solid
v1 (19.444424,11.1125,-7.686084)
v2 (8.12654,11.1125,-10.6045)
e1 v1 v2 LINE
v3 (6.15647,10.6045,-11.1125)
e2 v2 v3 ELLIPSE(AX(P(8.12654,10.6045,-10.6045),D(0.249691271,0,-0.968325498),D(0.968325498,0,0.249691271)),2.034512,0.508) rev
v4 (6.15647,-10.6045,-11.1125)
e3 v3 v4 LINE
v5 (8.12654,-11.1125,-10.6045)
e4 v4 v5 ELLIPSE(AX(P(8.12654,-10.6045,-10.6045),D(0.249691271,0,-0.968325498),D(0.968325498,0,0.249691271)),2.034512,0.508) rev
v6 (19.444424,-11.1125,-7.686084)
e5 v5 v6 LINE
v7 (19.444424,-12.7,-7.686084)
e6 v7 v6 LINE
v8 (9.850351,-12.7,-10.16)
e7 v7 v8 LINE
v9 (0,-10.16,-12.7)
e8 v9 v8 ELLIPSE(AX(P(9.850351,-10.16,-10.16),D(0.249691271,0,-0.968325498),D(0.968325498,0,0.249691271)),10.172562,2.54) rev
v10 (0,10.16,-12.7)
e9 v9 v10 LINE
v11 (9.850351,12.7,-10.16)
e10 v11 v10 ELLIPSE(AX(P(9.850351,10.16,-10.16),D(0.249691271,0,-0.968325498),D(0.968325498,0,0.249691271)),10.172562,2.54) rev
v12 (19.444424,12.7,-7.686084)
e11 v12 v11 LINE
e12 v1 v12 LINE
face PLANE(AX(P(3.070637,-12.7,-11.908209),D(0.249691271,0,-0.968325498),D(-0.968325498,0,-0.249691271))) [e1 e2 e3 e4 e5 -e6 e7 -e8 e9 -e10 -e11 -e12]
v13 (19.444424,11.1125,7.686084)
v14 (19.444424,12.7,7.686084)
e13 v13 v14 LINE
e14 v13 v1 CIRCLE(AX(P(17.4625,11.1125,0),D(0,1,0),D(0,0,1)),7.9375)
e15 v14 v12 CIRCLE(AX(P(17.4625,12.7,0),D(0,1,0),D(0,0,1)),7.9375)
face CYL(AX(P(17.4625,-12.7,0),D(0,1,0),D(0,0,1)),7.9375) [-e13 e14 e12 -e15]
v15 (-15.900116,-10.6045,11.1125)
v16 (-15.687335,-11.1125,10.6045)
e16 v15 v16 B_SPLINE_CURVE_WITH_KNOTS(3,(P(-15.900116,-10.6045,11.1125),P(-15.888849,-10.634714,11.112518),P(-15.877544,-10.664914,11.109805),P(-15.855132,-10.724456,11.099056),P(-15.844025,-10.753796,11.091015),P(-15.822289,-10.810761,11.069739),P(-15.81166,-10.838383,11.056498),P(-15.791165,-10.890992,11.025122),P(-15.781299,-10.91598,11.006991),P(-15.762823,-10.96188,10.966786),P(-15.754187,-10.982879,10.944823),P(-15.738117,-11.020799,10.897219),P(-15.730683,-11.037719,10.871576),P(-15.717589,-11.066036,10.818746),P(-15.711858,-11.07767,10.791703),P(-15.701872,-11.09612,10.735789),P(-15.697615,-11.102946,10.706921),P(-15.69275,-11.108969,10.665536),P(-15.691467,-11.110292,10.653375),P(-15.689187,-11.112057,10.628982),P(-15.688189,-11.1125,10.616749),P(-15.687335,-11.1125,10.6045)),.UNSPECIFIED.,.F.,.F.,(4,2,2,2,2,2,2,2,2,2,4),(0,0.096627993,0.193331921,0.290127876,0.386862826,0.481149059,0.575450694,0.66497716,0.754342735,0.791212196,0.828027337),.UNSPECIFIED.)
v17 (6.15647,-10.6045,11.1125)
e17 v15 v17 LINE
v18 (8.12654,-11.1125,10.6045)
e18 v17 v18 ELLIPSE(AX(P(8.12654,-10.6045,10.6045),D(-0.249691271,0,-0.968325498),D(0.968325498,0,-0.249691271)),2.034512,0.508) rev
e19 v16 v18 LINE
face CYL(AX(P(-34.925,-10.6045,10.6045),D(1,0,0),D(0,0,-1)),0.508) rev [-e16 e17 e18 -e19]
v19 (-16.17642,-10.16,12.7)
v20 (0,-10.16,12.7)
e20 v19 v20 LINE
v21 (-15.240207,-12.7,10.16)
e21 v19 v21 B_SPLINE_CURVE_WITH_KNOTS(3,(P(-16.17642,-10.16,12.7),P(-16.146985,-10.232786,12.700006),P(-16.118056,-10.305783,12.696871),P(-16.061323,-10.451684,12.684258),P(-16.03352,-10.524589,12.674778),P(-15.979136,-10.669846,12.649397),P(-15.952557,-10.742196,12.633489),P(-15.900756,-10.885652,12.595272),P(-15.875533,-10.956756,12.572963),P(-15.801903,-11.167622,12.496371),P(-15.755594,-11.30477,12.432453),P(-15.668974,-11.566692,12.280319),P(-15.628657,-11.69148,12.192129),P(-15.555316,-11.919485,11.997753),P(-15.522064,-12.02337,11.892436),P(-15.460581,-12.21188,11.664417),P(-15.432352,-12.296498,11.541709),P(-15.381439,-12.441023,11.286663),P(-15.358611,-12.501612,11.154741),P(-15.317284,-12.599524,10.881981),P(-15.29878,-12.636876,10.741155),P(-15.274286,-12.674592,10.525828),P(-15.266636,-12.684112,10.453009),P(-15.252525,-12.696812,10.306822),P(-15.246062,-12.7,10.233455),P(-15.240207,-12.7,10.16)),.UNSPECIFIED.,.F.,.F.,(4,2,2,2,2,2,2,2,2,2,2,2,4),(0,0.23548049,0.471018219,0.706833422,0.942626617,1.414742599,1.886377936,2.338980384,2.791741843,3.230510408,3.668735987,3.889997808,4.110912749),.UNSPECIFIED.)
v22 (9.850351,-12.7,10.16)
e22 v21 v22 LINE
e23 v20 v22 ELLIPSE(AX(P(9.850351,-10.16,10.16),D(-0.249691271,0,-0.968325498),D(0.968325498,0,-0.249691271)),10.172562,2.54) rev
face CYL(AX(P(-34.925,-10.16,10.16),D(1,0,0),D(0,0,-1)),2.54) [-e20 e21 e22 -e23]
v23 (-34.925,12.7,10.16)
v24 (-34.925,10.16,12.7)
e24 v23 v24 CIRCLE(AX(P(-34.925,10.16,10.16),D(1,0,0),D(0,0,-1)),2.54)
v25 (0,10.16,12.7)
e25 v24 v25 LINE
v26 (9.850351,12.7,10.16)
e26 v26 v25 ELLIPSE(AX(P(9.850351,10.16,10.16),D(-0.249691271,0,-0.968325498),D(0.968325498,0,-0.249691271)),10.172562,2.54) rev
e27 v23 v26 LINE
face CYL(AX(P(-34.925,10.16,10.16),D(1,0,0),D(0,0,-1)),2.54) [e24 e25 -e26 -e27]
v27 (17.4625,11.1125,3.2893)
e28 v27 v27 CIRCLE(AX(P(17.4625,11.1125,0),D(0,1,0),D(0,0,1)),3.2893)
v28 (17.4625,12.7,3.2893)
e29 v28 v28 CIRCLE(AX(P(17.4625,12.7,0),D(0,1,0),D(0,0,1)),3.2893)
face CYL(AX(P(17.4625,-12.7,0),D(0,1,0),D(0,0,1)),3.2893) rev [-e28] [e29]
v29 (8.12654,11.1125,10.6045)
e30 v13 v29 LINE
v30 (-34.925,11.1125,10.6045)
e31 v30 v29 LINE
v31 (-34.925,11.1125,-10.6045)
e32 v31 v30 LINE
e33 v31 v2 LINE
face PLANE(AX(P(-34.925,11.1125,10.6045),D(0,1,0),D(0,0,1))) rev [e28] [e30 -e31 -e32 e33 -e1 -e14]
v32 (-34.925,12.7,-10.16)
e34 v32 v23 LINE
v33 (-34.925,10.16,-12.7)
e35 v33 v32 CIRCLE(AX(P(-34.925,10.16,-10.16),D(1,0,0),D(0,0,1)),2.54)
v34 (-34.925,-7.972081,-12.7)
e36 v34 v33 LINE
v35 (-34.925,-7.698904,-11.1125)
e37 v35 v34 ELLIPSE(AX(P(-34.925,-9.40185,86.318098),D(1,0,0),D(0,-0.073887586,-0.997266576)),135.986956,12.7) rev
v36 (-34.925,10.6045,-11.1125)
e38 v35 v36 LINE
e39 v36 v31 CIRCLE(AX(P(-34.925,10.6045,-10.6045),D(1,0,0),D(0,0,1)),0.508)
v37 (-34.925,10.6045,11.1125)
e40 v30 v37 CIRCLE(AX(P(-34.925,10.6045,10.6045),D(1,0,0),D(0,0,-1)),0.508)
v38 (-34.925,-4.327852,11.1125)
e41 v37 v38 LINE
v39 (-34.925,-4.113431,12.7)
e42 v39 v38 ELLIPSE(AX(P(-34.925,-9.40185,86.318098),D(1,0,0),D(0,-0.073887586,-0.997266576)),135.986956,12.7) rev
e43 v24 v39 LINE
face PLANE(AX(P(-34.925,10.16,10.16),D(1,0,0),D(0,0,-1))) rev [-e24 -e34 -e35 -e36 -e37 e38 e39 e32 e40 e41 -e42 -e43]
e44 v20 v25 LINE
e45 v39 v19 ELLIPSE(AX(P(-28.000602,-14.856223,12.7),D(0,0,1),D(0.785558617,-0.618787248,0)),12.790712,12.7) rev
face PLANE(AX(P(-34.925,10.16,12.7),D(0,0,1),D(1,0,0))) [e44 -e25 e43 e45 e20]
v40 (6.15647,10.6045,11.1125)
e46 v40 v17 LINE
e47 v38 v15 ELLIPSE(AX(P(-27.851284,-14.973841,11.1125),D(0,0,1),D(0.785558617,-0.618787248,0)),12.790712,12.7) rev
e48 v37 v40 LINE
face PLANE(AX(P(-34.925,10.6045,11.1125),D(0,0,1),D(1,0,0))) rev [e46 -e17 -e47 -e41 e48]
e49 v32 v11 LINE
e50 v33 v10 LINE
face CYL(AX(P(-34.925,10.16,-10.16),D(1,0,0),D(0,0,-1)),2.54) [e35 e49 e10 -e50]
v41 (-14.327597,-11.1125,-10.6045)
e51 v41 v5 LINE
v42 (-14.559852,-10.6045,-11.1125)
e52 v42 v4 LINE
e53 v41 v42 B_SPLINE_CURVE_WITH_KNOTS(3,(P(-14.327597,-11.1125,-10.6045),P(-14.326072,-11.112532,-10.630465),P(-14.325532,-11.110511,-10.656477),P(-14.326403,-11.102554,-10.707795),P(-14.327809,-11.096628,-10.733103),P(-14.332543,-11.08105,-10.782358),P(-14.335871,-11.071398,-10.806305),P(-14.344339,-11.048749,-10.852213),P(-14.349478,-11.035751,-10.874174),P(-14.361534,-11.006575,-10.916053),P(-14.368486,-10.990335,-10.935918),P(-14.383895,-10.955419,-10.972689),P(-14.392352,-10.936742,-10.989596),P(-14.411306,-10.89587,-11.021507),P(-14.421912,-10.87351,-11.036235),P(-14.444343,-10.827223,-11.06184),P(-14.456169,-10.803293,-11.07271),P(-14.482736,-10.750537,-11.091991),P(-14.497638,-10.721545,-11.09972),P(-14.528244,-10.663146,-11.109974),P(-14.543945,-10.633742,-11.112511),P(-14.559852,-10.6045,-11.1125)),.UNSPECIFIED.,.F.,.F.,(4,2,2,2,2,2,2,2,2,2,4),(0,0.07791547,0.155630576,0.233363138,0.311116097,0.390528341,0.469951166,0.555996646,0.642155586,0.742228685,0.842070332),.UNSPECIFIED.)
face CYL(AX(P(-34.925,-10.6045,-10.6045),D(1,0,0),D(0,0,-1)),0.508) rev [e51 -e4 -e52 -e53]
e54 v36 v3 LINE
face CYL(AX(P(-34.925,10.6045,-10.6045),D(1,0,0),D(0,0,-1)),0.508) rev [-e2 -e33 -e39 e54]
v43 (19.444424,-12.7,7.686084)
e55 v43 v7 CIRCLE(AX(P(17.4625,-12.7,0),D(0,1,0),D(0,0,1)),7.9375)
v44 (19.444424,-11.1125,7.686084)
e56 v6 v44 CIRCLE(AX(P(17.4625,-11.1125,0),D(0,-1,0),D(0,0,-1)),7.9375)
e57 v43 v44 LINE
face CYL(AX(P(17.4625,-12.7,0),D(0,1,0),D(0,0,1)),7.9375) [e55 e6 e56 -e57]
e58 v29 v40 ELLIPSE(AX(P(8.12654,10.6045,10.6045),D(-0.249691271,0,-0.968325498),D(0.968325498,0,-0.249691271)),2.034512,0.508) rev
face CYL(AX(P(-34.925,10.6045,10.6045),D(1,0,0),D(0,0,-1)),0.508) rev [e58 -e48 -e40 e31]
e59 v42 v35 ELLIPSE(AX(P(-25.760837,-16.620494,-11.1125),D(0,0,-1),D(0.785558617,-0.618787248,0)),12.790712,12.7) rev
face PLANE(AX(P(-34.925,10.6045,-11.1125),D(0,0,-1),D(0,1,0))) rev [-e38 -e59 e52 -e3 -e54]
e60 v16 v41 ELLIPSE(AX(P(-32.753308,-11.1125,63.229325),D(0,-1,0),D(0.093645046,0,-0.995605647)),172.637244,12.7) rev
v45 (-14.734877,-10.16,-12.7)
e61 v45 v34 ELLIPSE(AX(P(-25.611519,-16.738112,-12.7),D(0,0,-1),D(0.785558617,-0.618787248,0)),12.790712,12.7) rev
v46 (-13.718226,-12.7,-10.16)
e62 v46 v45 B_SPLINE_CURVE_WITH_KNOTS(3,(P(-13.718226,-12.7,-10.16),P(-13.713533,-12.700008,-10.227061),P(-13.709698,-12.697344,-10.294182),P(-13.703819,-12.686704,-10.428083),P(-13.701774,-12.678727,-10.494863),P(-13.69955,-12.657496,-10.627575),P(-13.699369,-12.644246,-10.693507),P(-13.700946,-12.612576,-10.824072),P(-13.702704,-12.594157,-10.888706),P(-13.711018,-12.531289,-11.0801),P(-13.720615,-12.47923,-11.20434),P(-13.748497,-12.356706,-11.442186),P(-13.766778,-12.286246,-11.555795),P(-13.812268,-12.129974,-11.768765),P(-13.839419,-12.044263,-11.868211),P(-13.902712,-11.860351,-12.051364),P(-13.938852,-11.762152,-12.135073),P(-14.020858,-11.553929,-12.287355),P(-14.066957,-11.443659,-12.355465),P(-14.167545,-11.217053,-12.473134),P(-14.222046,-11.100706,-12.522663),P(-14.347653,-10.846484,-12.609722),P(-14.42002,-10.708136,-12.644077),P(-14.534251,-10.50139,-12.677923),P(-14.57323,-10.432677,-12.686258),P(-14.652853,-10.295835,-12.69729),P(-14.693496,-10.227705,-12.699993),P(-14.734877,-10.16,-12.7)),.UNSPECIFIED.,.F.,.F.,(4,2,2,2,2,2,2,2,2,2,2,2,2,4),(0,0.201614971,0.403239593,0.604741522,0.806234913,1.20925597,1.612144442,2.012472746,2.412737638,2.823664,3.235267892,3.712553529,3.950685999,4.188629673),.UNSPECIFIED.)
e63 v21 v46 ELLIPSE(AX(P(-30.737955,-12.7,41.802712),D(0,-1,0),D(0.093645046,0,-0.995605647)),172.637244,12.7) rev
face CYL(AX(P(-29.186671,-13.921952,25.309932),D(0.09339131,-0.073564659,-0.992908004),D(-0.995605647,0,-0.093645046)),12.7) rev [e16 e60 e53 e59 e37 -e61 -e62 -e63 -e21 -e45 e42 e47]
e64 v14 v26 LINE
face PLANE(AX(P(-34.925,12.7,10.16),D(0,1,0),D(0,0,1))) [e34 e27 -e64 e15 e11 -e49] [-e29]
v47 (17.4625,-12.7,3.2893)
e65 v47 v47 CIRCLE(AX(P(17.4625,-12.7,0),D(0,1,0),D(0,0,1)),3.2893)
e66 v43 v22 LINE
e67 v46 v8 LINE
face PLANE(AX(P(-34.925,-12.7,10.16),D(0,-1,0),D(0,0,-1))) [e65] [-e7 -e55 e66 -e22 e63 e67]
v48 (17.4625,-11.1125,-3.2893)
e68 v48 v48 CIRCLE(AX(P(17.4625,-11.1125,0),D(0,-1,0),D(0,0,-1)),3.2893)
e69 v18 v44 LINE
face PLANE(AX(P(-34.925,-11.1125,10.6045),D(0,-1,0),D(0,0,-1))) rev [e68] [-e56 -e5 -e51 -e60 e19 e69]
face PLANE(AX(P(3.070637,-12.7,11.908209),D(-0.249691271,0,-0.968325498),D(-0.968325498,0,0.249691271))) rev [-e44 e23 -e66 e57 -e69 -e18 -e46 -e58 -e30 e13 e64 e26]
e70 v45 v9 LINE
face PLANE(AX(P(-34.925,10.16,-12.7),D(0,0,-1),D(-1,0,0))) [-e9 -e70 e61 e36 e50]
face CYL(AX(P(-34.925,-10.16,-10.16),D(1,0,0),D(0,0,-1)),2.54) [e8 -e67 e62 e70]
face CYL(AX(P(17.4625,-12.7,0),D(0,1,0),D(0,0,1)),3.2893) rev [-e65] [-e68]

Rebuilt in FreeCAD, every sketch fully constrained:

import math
import FreeCAD as App
import Part
import Sketcher
from FreeCAD import Vector
Q = App.Units.Quantity

doc = App.newDocument("Part")
params = doc.addObject("Spreadsheet::Sheet", "Params")
for row, (alias, value) in enumerate([
    ("sketch1_radius", "0.1 in"),
    ("sketch1_width", "0.8 in"),
    ("pad1_length", "1 in"),
    ("pad1_length2", "1.375 in"),
    ("sketch2_radius", "0.02 in"),
    ("sketch2_width", "0.835 in"),
    ("sketch3_width", "2 in"),
    ("sketch3_height", "1 in"),
    ("sketch3_radius", "0.3125 in"),
    ("sketch4_diameter", "0.259 in"),
    ("sketch5_diameter", "1 in"),
], start=1):
    params.set(f"A{row}", alias)
    params.set(f"B{row}", "=" + value)
    params.setAlias(f"B{row}", alias)

body = doc.addObject("PartDesign::Body", "Body")

# Sketch on YZ plane
sketch1 = body.newObject("Sketcher::SketchObject", "Sketch")
sketch1.AttachmentSupport = (doc.getObject("YZ_Plane"), [""])
sketch1.MapMode = "FlatFace"
sketch1.addGeometry([
    Part.LineSegment(Vector(12.7, -10.2, 0), Vector(12.7, 10.2, 0)),  # 0
    Part.ArcOfCircle(Part.Circle(Vector(10.2, 10.2, 0), Vector(0, 0, 1), 2.5), math.radians(0), math.radians(90)),  # 1
    Part.LineSegment(Vector(10.2, 12.7, 0), Vector(-10.2, 12.7, 0)),  # 2
    Part.ArcOfCircle(Part.Circle(Vector(-10.2, 10.2, 0), Vector(0, 0, 1), 2.5), math.radians(90), math.radians(180)),  # 3
    Part.LineSegment(Vector(-12.7, 10.2, 0), Vector(-12.7, -10.2, 0)),  # 4
    Part.ArcOfCircle(Part.Circle(Vector(-10.2, -10.2, 0), Vector(0, 0, 1), 2.5), math.radians(-180), math.radians(-90)),  # 5
    Part.LineSegment(Vector(-10.2, -12.7, 0), Vector(10.2, -12.7, 0)),  # 6
    Part.ArcOfCircle(Part.Circle(Vector(10.2, -10.2, 0), Vector(0, 0, 1), 2.5), math.radians(-90), math.radians(0)),  # 7
], False)
sketch1.addConstraint([
    Sketcher.Constraint("Tangent", 0, 2, 1, 1),
    Sketcher.Constraint("Tangent", 1, 2, 2, 1),
    Sketcher.Constraint("Tangent", 2, 2, 3, 1),
    Sketcher.Constraint("Tangent", 3, 2, 4, 1),
    Sketcher.Constraint("Tangent", 4, 2, 5, 1),
    Sketcher.Constraint("Tangent", 5, 2, 6, 1),
    Sketcher.Constraint("Tangent", 6, 2, 7, 1),
    Sketcher.Constraint("Tangent", 7, 2, 0, 1),
    Sketcher.Constraint("Vertical", 0),
    Sketcher.Constraint("Horizontal", 2),
    Sketcher.Constraint("Vertical", 4),
    Sketcher.Constraint("Horizontal", 6),
    Sketcher.Constraint("Equal", 1, 3),
    Sketcher.Constraint("Equal", 3, 5),
    Sketcher.Constraint("Equal", 5, 7),
    Sketcher.Constraint("Symmetric", 1, 3, 5, 3, -1, 1),
    Sketcher.Constraint("Equal", 6, 0),
    Sketcher.Constraint("Radius", 1, Q("0.1 in")),
    Sketcher.Constraint("DistanceX", 2, 2, 2, 1, Q("0.8 in")),
])
sketch1.setExpression("Constraints[17]", "Params.sketch1_radius")
sketch1.setExpression("Constraints[18]", "Params.sketch1_width")
pad1 = body.newObject("PartDesign::Pad", "Pad")
pad1.Profile = sketch1
pad1.Type = "TwoLengths"
pad1.setExpression("Length", "Params.pad1_length")
pad1.setExpression("Length2", "Params.pad1_length2")

# Sketch on YZ plane
sketch2 = body.newObject("Sketcher::SketchObject", "Sketch001")
sketch2.AttachmentSupport = (doc.getObject("YZ_Plane"), [""])
sketch2.MapMode = "FlatFace"
sketch2.AttachmentOffset = App.Placement(Vector(0, 0, 1 * 25.4), App.Rotation())
sketch2.addGeometry([
    Part.LineSegment(Vector(11.1, -10.6, 0), Vector(11.1, 10.6, 0)),  # 0
    Part.ArcOfCircle(Part.Circle(Vector(10.6, 10.6, 0), Vector(0, 0, 1), 0.5), math.radians(0), math.radians(90)),  # 1
    Part.LineSegment(Vector(10.6, 11.1, 0), Vector(-10.6, 11.1, 0)),  # 2
    Part.ArcOfCircle(Part.Circle(Vector(-10.6, 10.6, 0), Vector(0, 0, 1), 0.5), math.radians(90), math.radians(180)),  # 3
    Part.LineSegment(Vector(-11.1, 10.6, 0), Vector(-11.1, -10.6, 0)),  # 4
    Part.ArcOfCircle(Part.Circle(Vector(-10.6, -10.6, 0), Vector(0, 0, 1), 0.5), math.radians(180), math.radians(270)),  # 5
    Part.LineSegment(Vector(-10.6, -11.1, 0), Vector(10.6, -11.1, 0)),  # 6
    Part.ArcOfCircle(Part.Circle(Vector(10.6, -10.6, 0), Vector(0, 0, 1), 0.5), math.radians(-90), math.radians(0)),  # 7
], False)
sketch2.addConstraint([
    Sketcher.Constraint("Tangent", 0, 2, 1, 1),
    Sketcher.Constraint("Tangent", 1, 2, 2, 1),
    Sketcher.Constraint("Tangent", 2, 2, 3, 1),
    Sketcher.Constraint("Tangent", 3, 2, 4, 1),
    Sketcher.Constraint("Tangent", 4, 2, 5, 1),
    Sketcher.Constraint("Tangent", 5, 2, 6, 1),
    Sketcher.Constraint("Tangent", 6, 2, 7, 1),
    Sketcher.Constraint("Tangent", 7, 2, 0, 1),
    Sketcher.Constraint("Vertical", 0),
    Sketcher.Constraint("Horizontal", 2),
    Sketcher.Constraint("Vertical", 4),
    Sketcher.Constraint("Horizontal", 6),
    Sketcher.Constraint("Equal", 1, 3),
    Sketcher.Constraint("Equal", 3, 5),
    Sketcher.Constraint("Equal", 5, 7),
    Sketcher.Constraint("Symmetric", 1, 3, 5, 3, -1, 1),
    Sketcher.Constraint("Equal", 6, 0),
    Sketcher.Constraint("Radius", 1, Q("0.02 in")),
    Sketcher.Constraint("DistanceX", 2, 2, 2, 1, Q("0.835 in")),
])
sketch2.setExpression("Constraints[17]", "Params.sketch2_radius")
sketch2.setExpression("Constraints[18]", "Params.sketch2_width")
pocket1 = body.newObject("PartDesign::Pocket", "Pocket")
pocket1.Profile = sketch2
pocket1.Type = "ThroughAll"

# Sketch on XZ plane
sketch3 = body.newObject("Sketcher::SketchObject", "Sketch002")
sketch3.AttachmentSupport = (doc.getObject("XZ_Plane"), [""])
sketch3.MapMode = "FlatFace"
sketch3.AttachmentOffset = App.Placement(Vector(0, 0, -0.5 * 25.4), App.Rotation())
sketch3.addGeometry([
    Part.LineSegment(Vector(51, -13, 0), Vector(0, -13, 0)),  # 0
    Part.LineSegment(Vector(0, -13, 0), Vector(19, -8, 0)),  # 1
    Part.ArcOfCircle(Part.Circle(Vector(17, 0, 0), Vector(0, 0, 1), 8), math.radians(-76), math.radians(76)),  # 2
    Part.LineSegment(Vector(19, 8, 0), Vector(0, 13, 0)),  # 3
    Part.LineSegment(Vector(0, 13, 0), Vector(51, 13, 0)),  # 4
    Part.LineSegment(Vector(51, 13, 0), Vector(51, -13, 0)),  # 5
], False)
sketch3.addConstraint([
    Sketcher.Constraint("Coincident", 0, 2, 1, 1),
    Sketcher.Constraint("Tangent", 1, 2, 2, 1),
    Sketcher.Constraint("Tangent", 2, 2, 3, 1),
    Sketcher.Constraint("Coincident", 3, 2, 4, 1),
    Sketcher.Constraint("Coincident", 4, 2, 5, 1),
    Sketcher.Constraint("Coincident", 5, 2, 0, 1),
    Sketcher.Constraint("Horizontal", 0),
    Sketcher.Constraint("Horizontal", 4),
    Sketcher.Constraint("Vertical", 5),
    Sketcher.Constraint("Symmetric", 0, 2, 3, 2, -1, 1),
    Sketcher.Constraint("Symmetric", 1, 2, 2, 2, -1),
    Sketcher.Constraint("DistanceX", 0, 2, 0, 1, Q("2 in")),
    Sketcher.Constraint("DistanceY", 5, 2, 5, 1, Q("1 in")),
    Sketcher.Constraint("Radius", 2, Q("0.3125 in")),
    Sketcher.Constraint("DistanceX", -1, 1, 2, 3, Q("0.6875 in")),
])
sketch3.setExpression("Constraints[11]", "Params.sketch3_width")
sketch3.setExpression("Constraints[12]", "Params.sketch3_height")
sketch3.setExpression("Constraints[13]", "Params.sketch3_radius")
pocket2 = body.newObject("PartDesign::Pocket", "Pocket001")
pocket2.Profile = sketch3
pocket2.Type = "ThroughAll"
pocket2.Reversed = True

# Sketch on XZ plane
sketch4 = body.newObject("Sketcher::SketchObject", "Sketch003")
sketch4.AttachmentSupport = (doc.getObject("XZ_Plane"), [""])
sketch4.MapMode = "FlatFace"
sketch4.AttachmentOffset = App.Placement(Vector(0, 0, -0.5 * 25.4), App.Rotation())
sketch4.addGeometry(Part.Circle(Vector(17.5, 0, 0), Vector(0, 0, 1), 3.3), False)
sketch4.addConstraint([
    Sketcher.Constraint("PointOnObject", 0, 3, -1),
    Sketcher.Constraint("Diameter", 0, Q("0.259 in")),
    Sketcher.Constraint("DistanceX", -1, 1, 0, 3, Q("0.6875 in")),
])
sketch4.setExpression("Constraints[1]", "Params.sketch4_diameter")
pocket3 = body.newObject("PartDesign::Pocket", "Pocket002")
pocket3.Profile = sketch4
pocket3.Type = "ThroughAll"
pocket3.Reversed = True

# Sketch on an angled plane
sketch5 = body.newObject("Sketcher::SketchObject", "Sketch004")
sketch5.Placement = App.Placement(Vector(-28.000602, -14.856223, 12.7), App.Rotation(Vector(0.995629481, 0.006900458, 0.093136032), Vector(0, 0.997266577, -0.073887586), Vector(-0.09339131, 0.073564659, 0.992908004), "ZXY"))
sketch5.addGeometry(Part.Circle(Vector(0, 0, 0), Vector(0, 0, 1), 13), False)
sketch5.addConstraint([
    Sketcher.Constraint("Coincident", 0, 3, -1, 1),
    Sketcher.Constraint("Diameter", 0, Q("1 in")),
])
sketch5.setExpression("Constraints[1]", "Params.sketch5_diameter")
pocket4 = body.newObject("PartDesign::Pocket", "Pocket003")
pocket4.Profile = sketch5
pocket4.Type = "ThroughAll"
pocket4.Midplane = True

doc.recompute()
